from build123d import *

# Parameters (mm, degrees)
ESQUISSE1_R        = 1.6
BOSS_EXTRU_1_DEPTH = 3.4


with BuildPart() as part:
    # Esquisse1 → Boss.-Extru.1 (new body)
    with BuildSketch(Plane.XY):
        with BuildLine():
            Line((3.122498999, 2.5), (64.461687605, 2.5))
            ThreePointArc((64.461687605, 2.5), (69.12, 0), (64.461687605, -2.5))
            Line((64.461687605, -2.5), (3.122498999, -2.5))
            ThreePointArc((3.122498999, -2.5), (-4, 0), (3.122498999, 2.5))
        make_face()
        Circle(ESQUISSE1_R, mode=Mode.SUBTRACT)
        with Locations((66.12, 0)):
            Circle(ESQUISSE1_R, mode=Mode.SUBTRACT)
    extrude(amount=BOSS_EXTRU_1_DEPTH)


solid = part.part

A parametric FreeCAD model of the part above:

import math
import FreeCAD as App
import Part
import Sketcher

V = App.Vector
Q = App.Units.Quantity

doc = App.newDocument("Part")
body = doc.addObject("PartDesign::Body", "Body")

# Sketch on XY plane
sketch1 = body.newObject("Sketcher::SketchObject", "Sketch")
sketch1.AttachmentSupport = (doc.getObject("XY_Plane"), [""])
sketch1.MapMode = "FlatFace"
sketch1.addGeometry(Part.LineSegment(V(64.5, 2.5, 0), V(3.1, 2.5, 0)), False)
sketch1.addGeometry(Part.ArcOfCircle(Part.Circle(V(0, 0, 0), V(0, 0, 1), 4), math.radians(39), math.radians(321)), False)
sketch1.addGeometry(Part.LineSegment(V(3.1, -2.5, 0), V(64.5, -2.5, 0)), False)
sketch1.addGeometry(Part.ArcOfCircle(Part.Circle(V(66.1, 0, 0), V(0, 0, 1), 3), math.radians(-124), math.radians(124)), False)
sketch1.addGeometry(Part.Circle(V(66.1, 0, 0), V(0, 0, 1), 1.6), False)
sketch1.addGeometry(Part.Circle(V(0, 0, 0), V(0, 0, 1), 1.6), False)
sketch1.addConstraint(Sketcher.Constraint("Coincident", 0, 2, 1, 1))
sketch1.addConstraint(Sketcher.Constraint("Coincident", 1, 2, 2, 1))
sketch1.addConstraint(Sketcher.Constraint("Coincident", 2, 2, 3, 1))
sketch1.addConstraint(Sketcher.Constraint("Coincident", 3, 2, 0, 1))
sketch1.addConstraint(Sketcher.Constraint("Horizontal", 0))
sketch1.addConstraint(Sketcher.Constraint("Horizontal", 2))
sketch1.addConstraint(Sketcher.Constraint("Coincident", 1, 3, -1, 1))
sketch1.addConstraint(Sketcher.Constraint("Coincident", 5, 3, -1, 1))
sketch1.addConstraint(Sketcher.Constraint("Coincident", 4, 3, 3, 3))
sketch1.addConstraint(Sketcher.Constraint("Equal", 4, 5))
sketch1.addConstraint(Sketcher.Constraint("Symmetric", 2, 2, 3, 2, -1))
sketch1.addConstraint(Sketcher.Constraint("Radius", 1, Q("4 mm")))
sketch1.addConstraint(Sketcher.Constraint("Radius", 3, Q("3 mm")))
sketch1.addConstraint(Sketcher.Constraint("Diameter", 4, Q("3.2 mm")))
sketch1.addConstraint(Sketcher.Constraint("DistanceY", 1, 2, 0, 2, Q("5 mm")))
sketch1.addConstraint(Sketcher.Constraint("DistanceX", -1, 1, 3, 3, Q("66.12 mm")))
pad1 = body.newObject("PartDesign::Pad", "Pad")
pad1.Profile = sketch1
pad1.Length = 3.4

doc.recompute()
